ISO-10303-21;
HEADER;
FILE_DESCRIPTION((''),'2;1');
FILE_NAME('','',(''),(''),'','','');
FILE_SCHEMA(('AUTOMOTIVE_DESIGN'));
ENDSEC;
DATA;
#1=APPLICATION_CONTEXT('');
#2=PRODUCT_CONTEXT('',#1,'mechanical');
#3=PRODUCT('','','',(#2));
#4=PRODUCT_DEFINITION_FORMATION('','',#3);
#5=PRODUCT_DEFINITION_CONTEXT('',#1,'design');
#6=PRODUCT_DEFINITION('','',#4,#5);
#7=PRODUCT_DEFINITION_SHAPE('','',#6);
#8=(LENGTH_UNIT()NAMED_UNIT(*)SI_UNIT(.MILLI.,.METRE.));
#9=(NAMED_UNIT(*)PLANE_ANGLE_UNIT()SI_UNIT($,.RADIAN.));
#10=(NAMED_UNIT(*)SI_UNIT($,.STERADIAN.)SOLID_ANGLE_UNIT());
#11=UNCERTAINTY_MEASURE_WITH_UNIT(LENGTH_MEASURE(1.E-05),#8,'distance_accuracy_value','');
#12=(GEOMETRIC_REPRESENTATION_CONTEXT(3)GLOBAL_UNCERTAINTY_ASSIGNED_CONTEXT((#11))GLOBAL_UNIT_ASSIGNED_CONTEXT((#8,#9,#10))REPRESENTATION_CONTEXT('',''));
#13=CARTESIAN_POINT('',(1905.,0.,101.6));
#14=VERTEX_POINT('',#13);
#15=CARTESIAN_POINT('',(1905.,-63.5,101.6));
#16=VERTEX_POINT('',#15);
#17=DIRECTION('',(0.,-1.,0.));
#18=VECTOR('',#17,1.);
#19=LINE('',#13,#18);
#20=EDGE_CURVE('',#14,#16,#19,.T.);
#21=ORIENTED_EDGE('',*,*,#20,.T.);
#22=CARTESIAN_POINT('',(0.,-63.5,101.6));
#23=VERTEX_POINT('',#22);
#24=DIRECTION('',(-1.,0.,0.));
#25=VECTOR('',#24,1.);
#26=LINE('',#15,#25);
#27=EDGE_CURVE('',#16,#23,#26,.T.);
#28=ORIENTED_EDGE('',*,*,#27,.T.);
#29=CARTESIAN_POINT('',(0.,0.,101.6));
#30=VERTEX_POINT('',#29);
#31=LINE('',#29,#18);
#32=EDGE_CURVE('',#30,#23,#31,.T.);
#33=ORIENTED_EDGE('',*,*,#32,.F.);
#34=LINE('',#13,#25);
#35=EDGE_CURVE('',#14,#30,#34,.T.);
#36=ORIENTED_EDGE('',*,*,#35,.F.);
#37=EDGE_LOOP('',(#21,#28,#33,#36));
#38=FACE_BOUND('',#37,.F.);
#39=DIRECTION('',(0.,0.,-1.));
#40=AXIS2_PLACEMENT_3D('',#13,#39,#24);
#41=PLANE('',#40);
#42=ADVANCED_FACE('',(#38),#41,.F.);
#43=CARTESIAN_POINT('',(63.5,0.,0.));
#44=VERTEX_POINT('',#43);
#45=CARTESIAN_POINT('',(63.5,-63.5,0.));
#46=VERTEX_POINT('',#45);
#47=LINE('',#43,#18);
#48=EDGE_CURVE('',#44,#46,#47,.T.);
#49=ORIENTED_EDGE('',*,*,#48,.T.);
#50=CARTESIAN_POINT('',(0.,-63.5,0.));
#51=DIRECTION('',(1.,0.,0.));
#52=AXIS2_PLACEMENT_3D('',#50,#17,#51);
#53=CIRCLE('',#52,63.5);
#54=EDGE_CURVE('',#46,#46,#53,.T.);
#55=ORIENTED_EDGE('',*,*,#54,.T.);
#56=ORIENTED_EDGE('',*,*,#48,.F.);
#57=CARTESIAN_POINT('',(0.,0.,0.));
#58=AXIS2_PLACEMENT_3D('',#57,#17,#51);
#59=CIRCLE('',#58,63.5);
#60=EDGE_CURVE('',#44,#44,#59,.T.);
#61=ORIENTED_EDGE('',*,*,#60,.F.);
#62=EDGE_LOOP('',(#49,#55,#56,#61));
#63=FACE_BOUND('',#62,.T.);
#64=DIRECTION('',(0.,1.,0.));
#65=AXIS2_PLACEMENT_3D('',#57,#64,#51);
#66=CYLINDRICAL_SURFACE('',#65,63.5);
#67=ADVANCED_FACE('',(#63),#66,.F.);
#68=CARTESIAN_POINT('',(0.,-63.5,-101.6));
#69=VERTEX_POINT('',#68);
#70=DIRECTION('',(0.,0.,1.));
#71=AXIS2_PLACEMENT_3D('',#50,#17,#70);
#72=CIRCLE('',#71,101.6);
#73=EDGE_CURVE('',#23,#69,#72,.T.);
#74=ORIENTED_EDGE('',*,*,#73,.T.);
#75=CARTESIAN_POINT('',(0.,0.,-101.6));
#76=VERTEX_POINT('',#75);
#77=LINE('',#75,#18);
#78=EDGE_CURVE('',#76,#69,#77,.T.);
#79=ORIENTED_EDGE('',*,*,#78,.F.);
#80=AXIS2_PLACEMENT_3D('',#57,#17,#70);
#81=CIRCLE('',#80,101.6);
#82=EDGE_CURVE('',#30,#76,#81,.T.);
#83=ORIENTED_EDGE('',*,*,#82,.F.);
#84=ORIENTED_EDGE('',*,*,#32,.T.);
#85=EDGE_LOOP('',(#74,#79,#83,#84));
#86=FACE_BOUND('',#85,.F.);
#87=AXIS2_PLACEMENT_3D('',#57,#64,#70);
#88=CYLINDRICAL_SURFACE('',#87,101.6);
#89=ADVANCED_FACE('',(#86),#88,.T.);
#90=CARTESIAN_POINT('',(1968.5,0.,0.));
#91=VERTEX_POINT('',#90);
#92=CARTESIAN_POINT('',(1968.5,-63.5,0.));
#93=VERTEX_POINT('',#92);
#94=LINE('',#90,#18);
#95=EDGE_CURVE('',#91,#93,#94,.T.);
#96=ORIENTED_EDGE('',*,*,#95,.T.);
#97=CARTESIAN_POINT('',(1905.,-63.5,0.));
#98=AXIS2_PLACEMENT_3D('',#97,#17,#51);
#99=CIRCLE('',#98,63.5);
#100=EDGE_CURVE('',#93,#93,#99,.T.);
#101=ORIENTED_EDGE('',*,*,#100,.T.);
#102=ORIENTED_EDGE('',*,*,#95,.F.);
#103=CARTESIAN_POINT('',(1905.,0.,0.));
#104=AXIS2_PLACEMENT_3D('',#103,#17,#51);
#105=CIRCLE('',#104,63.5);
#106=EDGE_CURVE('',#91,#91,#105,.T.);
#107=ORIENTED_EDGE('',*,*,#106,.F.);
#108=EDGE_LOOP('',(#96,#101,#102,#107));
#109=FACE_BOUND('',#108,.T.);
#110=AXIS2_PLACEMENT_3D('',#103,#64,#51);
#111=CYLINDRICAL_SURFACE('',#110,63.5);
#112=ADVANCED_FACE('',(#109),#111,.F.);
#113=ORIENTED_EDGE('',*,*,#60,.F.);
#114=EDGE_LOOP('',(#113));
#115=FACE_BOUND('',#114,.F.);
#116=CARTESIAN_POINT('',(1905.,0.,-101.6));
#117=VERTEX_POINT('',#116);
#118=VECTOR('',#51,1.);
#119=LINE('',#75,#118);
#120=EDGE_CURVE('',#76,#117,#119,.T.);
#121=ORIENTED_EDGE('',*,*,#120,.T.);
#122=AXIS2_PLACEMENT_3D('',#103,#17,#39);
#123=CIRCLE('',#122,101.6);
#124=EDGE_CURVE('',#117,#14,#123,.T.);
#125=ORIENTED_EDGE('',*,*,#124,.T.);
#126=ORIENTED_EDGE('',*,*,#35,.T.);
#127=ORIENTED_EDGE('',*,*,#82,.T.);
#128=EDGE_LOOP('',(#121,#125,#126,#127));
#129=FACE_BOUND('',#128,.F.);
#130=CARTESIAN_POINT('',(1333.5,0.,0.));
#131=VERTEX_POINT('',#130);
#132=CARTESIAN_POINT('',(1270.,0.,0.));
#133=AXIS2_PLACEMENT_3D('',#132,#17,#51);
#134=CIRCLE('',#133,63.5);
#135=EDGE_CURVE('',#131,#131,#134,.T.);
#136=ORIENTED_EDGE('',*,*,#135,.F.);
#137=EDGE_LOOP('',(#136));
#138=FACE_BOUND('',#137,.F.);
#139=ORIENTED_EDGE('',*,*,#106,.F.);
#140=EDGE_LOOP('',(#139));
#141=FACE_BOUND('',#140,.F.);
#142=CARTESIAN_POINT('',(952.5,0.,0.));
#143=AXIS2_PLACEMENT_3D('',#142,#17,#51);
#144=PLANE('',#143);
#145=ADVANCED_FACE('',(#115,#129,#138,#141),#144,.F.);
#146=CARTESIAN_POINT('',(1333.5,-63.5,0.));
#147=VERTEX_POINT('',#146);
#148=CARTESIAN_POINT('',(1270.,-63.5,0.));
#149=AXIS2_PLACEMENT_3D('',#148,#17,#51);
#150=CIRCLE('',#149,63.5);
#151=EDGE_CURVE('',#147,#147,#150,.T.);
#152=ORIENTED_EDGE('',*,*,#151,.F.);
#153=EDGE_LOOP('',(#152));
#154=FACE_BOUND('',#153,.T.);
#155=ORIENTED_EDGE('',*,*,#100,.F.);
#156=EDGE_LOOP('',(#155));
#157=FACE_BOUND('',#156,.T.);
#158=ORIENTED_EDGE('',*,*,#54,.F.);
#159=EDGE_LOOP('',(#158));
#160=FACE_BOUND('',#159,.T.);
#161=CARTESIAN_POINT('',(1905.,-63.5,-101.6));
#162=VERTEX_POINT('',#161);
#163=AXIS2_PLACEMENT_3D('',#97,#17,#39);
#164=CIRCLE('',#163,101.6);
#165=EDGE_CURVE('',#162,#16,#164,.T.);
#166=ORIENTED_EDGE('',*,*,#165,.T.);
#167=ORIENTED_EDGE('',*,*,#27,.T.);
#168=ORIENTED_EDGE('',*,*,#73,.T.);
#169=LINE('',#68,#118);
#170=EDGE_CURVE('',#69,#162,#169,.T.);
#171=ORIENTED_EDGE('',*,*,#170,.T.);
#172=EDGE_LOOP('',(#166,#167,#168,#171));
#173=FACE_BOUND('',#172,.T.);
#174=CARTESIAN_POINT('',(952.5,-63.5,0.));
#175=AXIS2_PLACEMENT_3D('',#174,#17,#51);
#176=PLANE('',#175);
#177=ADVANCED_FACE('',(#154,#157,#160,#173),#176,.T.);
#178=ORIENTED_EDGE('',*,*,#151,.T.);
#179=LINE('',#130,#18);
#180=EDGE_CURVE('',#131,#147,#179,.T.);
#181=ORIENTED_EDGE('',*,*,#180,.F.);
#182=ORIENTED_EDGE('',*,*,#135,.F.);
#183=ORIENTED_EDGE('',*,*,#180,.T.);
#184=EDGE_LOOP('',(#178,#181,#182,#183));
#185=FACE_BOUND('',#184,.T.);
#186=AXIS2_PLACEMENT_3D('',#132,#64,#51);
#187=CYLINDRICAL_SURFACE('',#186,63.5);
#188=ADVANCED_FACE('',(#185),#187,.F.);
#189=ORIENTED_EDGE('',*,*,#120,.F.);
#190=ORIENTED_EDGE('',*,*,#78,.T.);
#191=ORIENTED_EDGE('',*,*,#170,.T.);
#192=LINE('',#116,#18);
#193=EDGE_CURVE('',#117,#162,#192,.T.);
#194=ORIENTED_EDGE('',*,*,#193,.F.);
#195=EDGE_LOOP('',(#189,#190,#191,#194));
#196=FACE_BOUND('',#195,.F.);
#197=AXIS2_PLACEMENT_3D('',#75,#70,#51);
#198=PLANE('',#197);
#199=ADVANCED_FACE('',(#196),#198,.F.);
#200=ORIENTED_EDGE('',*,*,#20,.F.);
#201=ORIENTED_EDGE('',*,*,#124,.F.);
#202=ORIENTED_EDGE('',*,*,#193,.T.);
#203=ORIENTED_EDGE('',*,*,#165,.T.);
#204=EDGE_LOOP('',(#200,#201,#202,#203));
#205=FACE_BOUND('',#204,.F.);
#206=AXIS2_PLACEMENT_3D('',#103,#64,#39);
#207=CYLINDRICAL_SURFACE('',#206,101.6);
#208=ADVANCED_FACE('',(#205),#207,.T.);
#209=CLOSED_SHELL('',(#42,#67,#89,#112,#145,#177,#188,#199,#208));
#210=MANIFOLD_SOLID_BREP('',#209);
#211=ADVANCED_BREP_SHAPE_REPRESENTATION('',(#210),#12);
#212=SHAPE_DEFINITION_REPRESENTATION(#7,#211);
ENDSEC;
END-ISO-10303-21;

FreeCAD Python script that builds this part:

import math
import FreeCAD as App
import Part
import Sketcher

V = App.Vector
Q = App.Units.Quantity

doc = App.newDocument("Part")
body = doc.addObject("PartDesign::Body", "Body")

sketch1 = doc.addObject("Sketcher::SketchObject", "Sketch")
body.addObject(sketch1)
sketch1.AttachmentSupport = (doc.XZ_Plane, [""])
sketch1.MapMode = "FlatFace"
sketch1.addGeometry([
    Part.LineSegment(V(1905, 101.6, 0), V(0, 101.6, 0)),
    Part.ArcOfCircle(Part.Circle(V(0, 0, 0), V(0, 0, 1), 101.6), math.radians(90), math.radians(270)),
    Part.LineSegment(V(0, -101.6, 0), V(1905, -101.6, 0)),
    Part.ArcOfCircle(Part.Circle(V(1905, 0, 0), V(0, 0, 1), 101.6), math.radians(-90), math.radians(90)),
    Part.Circle(V(0, 0, 0), V(0, 0, 1), 63.5),
    Part.Circle(V(1270, 0, 0), V(0, 0, 1), 63.5),
    Part.Circle(V(1905, 0, 0), V(0, 0, 1), 63.5),
], False)
sketch1.addConstraint([
    Sketcher.Constraint("Tangent", 0, 2, 1, 1),
    Sketcher.Constraint("Tangent", 1, 2, 2, 1),
    Sketcher.Constraint("Tangent", 2, 2, 3, 1),
    Sketcher.Constraint("Tangent", 3, 2, 0, 1),
    Sketcher.Constraint("Horizontal", 0),
    Sketcher.Constraint("Horizontal", 2),
    Sketcher.Constraint("Coincident", 1, 3, -1, 1),
    Sketcher.Constraint("Coincident", 4, 3, -1, 1),
    Sketcher.Constraint("Coincident", 6, 3, 3, 3),
    Sketcher.Constraint("Equal", 4, 5),
    Sketcher.Constraint("Equal", 5, 6),
    Sketcher.Constraint("PointOnObject", 5, 3, -1),
    Sketcher.Constraint("Diameter", 4, Q("5 in")),
    Sketcher.Constraint("Radius", 1, Q("4 in")),
    Sketcher.Constraint("DistanceX", 0, 2, 0, 1, Q("75 in")),
    Sketcher.Constraint("DistanceX", -1, 1, 5, 3, Q("50 in")),
])
pad1 = doc.addObject("PartDesign::Pad", "Pad")
body.addObject(pad1)
pad1.Profile = sketch1
pad1.Length = Q("2.5 in")

doc.recompute()
